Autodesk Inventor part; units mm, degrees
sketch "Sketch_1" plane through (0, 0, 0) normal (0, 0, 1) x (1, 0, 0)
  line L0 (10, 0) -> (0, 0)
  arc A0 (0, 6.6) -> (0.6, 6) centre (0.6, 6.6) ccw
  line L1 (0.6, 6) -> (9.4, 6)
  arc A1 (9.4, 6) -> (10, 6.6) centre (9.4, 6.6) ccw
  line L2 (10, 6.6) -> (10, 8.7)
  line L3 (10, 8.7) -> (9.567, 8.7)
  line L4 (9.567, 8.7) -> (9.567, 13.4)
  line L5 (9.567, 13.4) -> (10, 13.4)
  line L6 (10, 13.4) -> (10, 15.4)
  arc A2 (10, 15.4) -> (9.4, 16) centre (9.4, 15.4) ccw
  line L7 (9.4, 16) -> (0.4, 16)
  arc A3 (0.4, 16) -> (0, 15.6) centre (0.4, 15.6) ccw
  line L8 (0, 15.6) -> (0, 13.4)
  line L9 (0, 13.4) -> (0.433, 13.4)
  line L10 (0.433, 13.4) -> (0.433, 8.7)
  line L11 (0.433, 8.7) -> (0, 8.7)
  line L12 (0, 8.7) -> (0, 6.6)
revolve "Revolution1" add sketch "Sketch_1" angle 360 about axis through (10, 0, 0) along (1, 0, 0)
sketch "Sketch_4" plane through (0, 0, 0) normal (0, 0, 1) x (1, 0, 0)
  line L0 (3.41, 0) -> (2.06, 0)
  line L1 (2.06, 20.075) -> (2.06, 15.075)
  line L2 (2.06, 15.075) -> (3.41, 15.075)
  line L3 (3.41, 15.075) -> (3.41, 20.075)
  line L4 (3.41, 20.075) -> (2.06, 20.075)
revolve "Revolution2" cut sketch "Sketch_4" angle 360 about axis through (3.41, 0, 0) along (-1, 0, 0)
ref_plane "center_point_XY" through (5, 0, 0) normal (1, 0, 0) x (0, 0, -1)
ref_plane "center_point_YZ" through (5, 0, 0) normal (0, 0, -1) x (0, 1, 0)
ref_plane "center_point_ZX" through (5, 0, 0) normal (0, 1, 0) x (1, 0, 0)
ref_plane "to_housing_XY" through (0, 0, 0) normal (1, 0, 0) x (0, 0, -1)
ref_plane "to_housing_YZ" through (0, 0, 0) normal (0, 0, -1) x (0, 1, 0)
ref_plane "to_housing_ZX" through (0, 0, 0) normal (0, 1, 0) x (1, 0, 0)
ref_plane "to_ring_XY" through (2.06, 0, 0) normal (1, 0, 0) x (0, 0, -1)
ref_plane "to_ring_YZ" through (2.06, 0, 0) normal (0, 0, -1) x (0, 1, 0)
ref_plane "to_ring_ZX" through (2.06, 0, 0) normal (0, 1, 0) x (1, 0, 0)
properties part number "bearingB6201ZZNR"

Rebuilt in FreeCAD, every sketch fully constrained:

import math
import FreeCAD as App
import Part
import Sketcher


def add_polygon(sketch, points):
    """Adds a closed chain of lines whose ends are joined by coincident constraints."""
    first, n = sketch.GeometryCount, len(points)
    for a, b in zip(points, points[1:] + points[:1]):
        sketch.addGeometry(Part.LineSegment(App.Vector(*a, 0), App.Vector(*b, 0)), False)
    for i in range(n):
        sketch.addConstraint(Sketcher.Constraint("Coincident", first + i, 2, first + (i + 1) % n, 1))

doc = App.newDocument("Part")
params = doc.addObject("Spreadsheet::Sheet", "Params")
for row, (alias, value) in enumerate([
    ("sketch1_radius", "0.6 mm"),
    ("sketch1_radius2", "0.4 mm"),
    ("sketch1_width", "9 mm"),
    ("sketch1_height", "2 mm"),
    ("sketch1_height2", "2.1 mm"),
    ("revolution_angle", "360 deg"),
    ("sketch2_height", "5 mm"),
    ("sketch2_width", "1.35 mm"),
    ("groove_angle", "360 deg"),
], start=1):
    params.set(f"A{row}", alias)
    params.set(f"B{row}", "=" + value)
    params.setAlias(f"B{row}", alias)

body = doc.addObject("PartDesign::Body", "Body")

# Sketch on XY plane
sketch1 = body.newObject("Sketcher::SketchObject", "Sketch")
sketch1.AttachmentSupport = (doc.getObject("XY_Plane"), [""])
sketch1.MapMode = "FlatFace"
sketch1.addGeometry(Part.LineSegment(App.Vector(0, 8.7, 0), App.Vector(0, 6.6, 0)), False)
sketch1.addGeometry(Part.ArcOfCircle(Part.Circle(App.Vector(0.6, 6.6, 0), App.Vector(0, 0, 1), 0.6), math.radians(180), math.radians(270)), False)
sketch1.addGeometry(Part.LineSegment(App.Vector(0.6, 6, 0), App.Vector(9.4, 6, 0)), False)
sketch1.addGeometry(Part.ArcOfCircle(Part.Circle(App.Vector(9.4, 6.6, 0), App.Vector(0, 0, 1), 0.6), math.radians(-90), math.radians(0)), False)
sketch1.addGeometry(Part.LineSegment(App.Vector(10, 6.6, 0), App.Vector(10, 8.7, 0)), False)
sketch1.addGeometry(Part.LineSegment(App.Vector(10, 8.7, 0), App.Vector(9.57, 8.7, 0)), False)
sketch1.addGeometry(Part.LineSegment(App.Vector(9.57, 8.7, 0), App.Vector(9.57, 13.4, 0)), False)
sketch1.addGeometry(Part.LineSegment(App.Vector(9.57, 13.4, 0), App.Vector(10, 13.4, 0)), False)
sketch1.addGeometry(Part.LineSegment(App.Vector(10, 13.4, 0), App.Vector(10, 15.4, 0)), False)
sketch1.addGeometry(Part.ArcOfCircle(Part.Circle(App.Vector(9.4, 15.4, 0), App.Vector(0, 0, 1), 0.6), math.radians(0), math.radians(90)), False)
sketch1.addGeometry(Part.LineSegment(App.Vector(9.4, 16, 0), App.Vector(0.4, 16, 0)), False)
sketch1.addGeometry(Part.ArcOfCircle(Part.Circle(App.Vector(0.4, 15.6, 0), App.Vector(0, 0, 1), 0.4), math.radians(90), math.radians(180)), False)
sketch1.addGeometry(Part.LineSegment(App.Vector(0, 15.6, 0), App.Vector(0, 13.4, 0)), False)
sketch1.addGeometry(Part.LineSegment(App.Vector(0, 13.4, 0), App.Vector(0.43, 13.4, 0)), False)
sketch1.addGeometry(Part.LineSegment(App.Vector(0.43, 13.4, 0), App.Vector(0.43, 8.7, 0)), False)
sketch1.addGeometry(Part.LineSegment(App.Vector(0.43, 8.7, 0), App.Vector(0, 8.7, 0)), False)
sketch1.addConstraint(Sketcher.Constraint("Tangent", 0, 2, 1, 1))
sketch1.addConstraint(Sketcher.Constraint("Tangent", 1, 2, 2, 1))
sketch1.addConstraint(Sketcher.Constraint("Tangent", 2, 2, 3, 1))
sketch1.addConstraint(Sketcher.Constraint("Tangent", 3, 2, 4, 1))
sketch1.addConstraint(Sketcher.Constraint("Coincident", 4, 2, 5, 1))
sketch1.addConstraint(Sketcher.Constraint("Coincident", 5, 2, 6, 1))
sketch1.addConstraint(Sketcher.Constraint("Coincident", 6, 2, 7, 1))
sketch1.addConstraint(Sketcher.Constraint("Coincident", 7, 2, 8, 1))
sketch1.addConstraint(Sketcher.Constraint("Tangent", 8, 2, 9, 1))
sketch1.addConstraint(Sketcher.Constraint("Tangent", 9, 2, 10, 1))
sketch1.addConstraint(Sketcher.Constraint("Tangent", 10, 2, 11, 1))
sketch1.addConstraint(Sketcher.Constraint("Tangent", 11, 2, 12, 1))
sketch1.addConstraint(Sketcher.Constraint("Coincident", 12, 2, 13, 1))
sketch1.addConstraint(Sketcher.Constraint("Coincident", 13, 2, 14, 1))
sketch1.addConstraint(Sketcher.Constraint("Coincident", 14, 2, 15, 1))
sketch1.addConstraint(Sketcher.Constraint("Coincident", 15, 2, 0, 1))
sketch1.addConstraint(Sketcher.Constraint("Vertical", 0))
sketch1.addConstraint(Sketcher.Constraint("Horizontal", 2))
sketch1.addConstraint(Sketcher.Constraint("Vertical", 4))
sketch1.addConstraint(Sketcher.Constraint("Horizontal", 5))
sketch1.addConstraint(Sketcher.Constraint("Vertical", 6))
sketch1.addConstraint(Sketcher.Constraint("Horizontal", 7))
sketch1.addConstraint(Sketcher.Constraint("Vertical", 8))
sketch1.addConstraint(Sketcher.Constraint("Horizontal", 10))
sketch1.addConstraint(Sketcher.Constraint("Vertical", 12))
sketch1.addConstraint(Sketcher.Constraint("Horizontal", 13))
sketch1.addConstraint(Sketcher.Constraint("Vertical", 14))
sketch1.addConstraint(Sketcher.Constraint("Horizontal", 15))
sketch1.addConstraint(Sketcher.Constraint("Equal", 1, 3))
sketch1.addConstraint(Sketcher.Constraint("Equal", 3, 9))
sketch1.addConstraint(Sketcher.Constraint("PointOnObject", 0, 2, -2))
sketch1.addConstraint(Sketcher.Constraint("PointOnObject", 11, 2, -2))
sketch1.addConstraint(Sketcher.Constraint("Horizontal", 7, 2, 12, 2))
sketch1.addConstraint(Sketcher.Constraint("Horizontal", 5, 2, 14, 2))
sketch1.addConstraint(Sketcher.Constraint("Vertical", 3, 3, 9, 3))
sketch1.addConstraint(Sketcher.Constraint("Equal", 7, 13))
sketch1.addConstraint(Sketcher.Constraint("Radius", 1, 0.6))
sketch1.addConstraint(Sketcher.Constraint("Radius", 11, 0.4))
sketch1.addConstraint(Sketcher.Constraint("DistanceX", 10, 2, 10, 1, 9.0))
sketch1.addConstraint(Sketcher.Constraint("DistanceY", 8, 1, 8, 2, 2.0))
sketch1.addConstraint(Sketcher.Constraint("DistanceY", 0, 2, 0, 1, 2.1))
sketch1.addConstraint(Sketcher.Constraint("DistanceY", 6, 1, 6, 2, 4.7))
sketch1.addConstraint(Sketcher.Constraint("DistanceY", -1, 1, 1, 2, 6.0))
sketch1.addConstraint(Sketcher.Constraint("DistanceX", 5, 2, 5, 1, 0.433))
sketch1.setExpression("Constraints[36]", "Params.sketch1_radius")
sketch1.setExpression("Constraints[37]", "Params.sketch1_radius2")
sketch1.setExpression("Constraints[38]", "Params.sketch1_width")
sketch1.setExpression("Constraints[39]", "Params.sketch1_height")
sketch1.setExpression("Constraints[40]", "Params.sketch1_height2")
revolution = body.newObject("PartDesign::Revolution", "Revolution")
revolution.Profile = sketch1
revolution.ReferenceAxis = (sketch1, ["H_Axis"])
revolution.setExpression("Angle", "Params.revolution_angle")

# Sketch on XY plane
sketch2 = body.newObject("Sketcher::SketchObject", "Sketch001")
sketch2.AttachmentSupport = (doc.getObject("XY_Plane"), [""])
sketch2.MapMode = "FlatFace"
add_polygon(sketch2, [(3.4, 20.1), (2.1, 20.1), (2.1, 15.1), (3.4, 15.1)])  # lines 0-3
sketch2.addConstraint(Sketcher.Constraint("Horizontal", 0))
sketch2.addConstraint(Sketcher.Constraint("Vertical", 1))
sketch2.addConstraint(Sketcher.Constraint("Horizontal", 2))
sketch2.addConstraint(Sketcher.Constraint("Vertical", 3))
sketch2.addConstraint(Sketcher.Constraint("DistanceY", 1, 2, 1, 1, 5.0))
sketch2.addConstraint(Sketcher.Constraint("DistanceX", 0, 2, 0, 1, 1.35))
sketch2.addConstraint(Sketcher.Constraint("DistanceX", -1, 1, 0, 2, 2.06))
sketch2.addConstraint(Sketcher.Constraint("DistanceY", -1, 1, 0, 2, 20.075))
sketch2.setExpression("Constraints[8]", "Params.sketch2_height")
sketch2.setExpression("Constraints[9]", "Params.sketch2_width")
groove = body.newObject("PartDesign::Groove", "Groove")
groove.Profile = sketch2
groove.ReferenceAxis = (sketch2, ["H_Axis"])
groove.setExpression("Angle", "Params.groove_angle")

doc.recompute()
